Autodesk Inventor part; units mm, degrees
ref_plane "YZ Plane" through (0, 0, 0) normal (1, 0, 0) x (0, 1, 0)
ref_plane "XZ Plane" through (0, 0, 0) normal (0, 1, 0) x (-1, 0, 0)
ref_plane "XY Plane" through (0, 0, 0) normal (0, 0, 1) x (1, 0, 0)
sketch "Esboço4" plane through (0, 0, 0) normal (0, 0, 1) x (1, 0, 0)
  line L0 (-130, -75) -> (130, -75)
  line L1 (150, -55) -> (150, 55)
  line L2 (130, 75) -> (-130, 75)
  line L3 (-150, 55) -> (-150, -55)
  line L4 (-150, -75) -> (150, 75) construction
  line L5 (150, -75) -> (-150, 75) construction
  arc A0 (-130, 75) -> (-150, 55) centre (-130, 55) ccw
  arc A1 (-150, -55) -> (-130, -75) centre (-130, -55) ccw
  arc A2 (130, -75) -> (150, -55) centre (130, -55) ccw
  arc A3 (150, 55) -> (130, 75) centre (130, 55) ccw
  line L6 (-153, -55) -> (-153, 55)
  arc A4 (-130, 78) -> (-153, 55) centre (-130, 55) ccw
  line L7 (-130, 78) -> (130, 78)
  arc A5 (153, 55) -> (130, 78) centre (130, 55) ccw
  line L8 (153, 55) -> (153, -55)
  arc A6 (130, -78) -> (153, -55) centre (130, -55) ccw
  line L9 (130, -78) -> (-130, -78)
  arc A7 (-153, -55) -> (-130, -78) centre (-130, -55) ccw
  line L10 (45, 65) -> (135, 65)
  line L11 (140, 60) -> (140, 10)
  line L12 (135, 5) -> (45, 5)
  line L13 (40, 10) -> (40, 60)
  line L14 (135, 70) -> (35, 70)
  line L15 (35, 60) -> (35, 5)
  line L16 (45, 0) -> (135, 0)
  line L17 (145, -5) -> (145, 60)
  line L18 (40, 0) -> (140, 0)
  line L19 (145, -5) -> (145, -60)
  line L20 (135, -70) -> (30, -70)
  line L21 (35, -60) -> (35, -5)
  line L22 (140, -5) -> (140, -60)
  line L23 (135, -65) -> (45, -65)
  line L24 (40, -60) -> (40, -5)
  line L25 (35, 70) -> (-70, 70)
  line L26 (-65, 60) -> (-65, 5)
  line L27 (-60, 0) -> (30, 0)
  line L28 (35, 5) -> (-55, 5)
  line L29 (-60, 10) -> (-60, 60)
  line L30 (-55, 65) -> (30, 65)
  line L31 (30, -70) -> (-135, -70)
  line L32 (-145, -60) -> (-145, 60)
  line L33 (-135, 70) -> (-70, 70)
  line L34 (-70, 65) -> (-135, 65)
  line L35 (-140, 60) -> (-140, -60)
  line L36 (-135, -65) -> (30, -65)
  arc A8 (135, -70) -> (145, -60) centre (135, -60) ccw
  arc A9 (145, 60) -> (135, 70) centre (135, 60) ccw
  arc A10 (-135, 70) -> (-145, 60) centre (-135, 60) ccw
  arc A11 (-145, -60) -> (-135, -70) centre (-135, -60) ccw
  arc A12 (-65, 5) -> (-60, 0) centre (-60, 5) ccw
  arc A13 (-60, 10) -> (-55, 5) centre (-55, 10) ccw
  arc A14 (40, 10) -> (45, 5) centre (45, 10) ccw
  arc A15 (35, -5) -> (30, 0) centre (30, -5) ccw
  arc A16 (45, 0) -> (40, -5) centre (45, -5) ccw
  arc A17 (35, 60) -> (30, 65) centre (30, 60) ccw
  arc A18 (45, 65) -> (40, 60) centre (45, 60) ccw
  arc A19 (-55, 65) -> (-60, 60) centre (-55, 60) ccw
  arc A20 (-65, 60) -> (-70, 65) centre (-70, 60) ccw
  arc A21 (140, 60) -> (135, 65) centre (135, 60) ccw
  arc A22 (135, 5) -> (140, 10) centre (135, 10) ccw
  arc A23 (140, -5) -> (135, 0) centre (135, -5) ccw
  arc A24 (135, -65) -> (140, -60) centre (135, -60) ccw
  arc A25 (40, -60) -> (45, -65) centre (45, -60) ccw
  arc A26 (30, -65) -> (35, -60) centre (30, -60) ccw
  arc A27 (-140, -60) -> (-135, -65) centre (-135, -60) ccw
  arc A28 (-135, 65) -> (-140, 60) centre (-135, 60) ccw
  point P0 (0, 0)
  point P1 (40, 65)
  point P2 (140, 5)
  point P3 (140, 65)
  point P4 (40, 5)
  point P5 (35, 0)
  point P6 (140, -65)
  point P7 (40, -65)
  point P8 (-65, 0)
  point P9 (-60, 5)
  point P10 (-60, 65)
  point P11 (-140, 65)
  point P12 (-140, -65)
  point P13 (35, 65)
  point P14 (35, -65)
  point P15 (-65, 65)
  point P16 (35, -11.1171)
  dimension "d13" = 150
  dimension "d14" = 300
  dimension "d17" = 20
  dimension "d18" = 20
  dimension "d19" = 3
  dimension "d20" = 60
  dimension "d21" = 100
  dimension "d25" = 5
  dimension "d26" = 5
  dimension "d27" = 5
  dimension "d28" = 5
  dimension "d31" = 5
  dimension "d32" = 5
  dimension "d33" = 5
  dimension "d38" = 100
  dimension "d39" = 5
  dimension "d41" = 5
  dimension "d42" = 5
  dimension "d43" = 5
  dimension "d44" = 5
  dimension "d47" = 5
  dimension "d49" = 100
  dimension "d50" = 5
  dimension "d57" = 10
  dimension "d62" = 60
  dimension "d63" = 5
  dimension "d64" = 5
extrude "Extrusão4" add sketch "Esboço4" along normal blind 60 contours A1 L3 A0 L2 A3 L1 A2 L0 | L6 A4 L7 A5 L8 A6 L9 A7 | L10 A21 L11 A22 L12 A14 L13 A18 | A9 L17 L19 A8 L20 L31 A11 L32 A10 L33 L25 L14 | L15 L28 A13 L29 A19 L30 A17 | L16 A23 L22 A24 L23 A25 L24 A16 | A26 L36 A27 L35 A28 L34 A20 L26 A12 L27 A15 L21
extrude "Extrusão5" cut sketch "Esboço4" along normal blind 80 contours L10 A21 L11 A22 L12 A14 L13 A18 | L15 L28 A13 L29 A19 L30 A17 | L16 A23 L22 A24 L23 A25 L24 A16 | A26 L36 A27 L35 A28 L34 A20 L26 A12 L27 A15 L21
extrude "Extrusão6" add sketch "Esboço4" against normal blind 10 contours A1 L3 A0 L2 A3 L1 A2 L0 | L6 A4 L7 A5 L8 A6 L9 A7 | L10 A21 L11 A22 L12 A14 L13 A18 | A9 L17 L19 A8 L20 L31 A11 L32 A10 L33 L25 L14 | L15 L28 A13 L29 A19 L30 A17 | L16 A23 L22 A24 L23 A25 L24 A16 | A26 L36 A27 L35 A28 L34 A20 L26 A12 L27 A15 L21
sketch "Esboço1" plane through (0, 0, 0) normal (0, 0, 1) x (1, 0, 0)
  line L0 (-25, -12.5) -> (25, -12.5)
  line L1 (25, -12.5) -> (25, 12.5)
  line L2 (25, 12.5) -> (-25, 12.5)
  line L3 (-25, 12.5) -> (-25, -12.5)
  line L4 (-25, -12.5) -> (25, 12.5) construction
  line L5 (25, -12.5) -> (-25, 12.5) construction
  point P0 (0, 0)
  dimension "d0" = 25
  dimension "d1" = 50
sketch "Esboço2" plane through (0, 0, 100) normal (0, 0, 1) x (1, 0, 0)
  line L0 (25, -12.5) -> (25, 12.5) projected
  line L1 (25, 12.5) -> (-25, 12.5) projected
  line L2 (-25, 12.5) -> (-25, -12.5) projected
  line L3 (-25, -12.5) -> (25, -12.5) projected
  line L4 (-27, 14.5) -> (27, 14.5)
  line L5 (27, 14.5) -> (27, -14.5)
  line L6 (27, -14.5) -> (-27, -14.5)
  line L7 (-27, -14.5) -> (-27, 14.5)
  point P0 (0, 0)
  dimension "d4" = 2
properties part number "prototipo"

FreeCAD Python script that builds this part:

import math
import FreeCAD as App
import Part
import Sketcher
from FreeCAD import Vector
Q = App.Units.Quantity

doc = App.newDocument("Part")
body = doc.addObject("PartDesign::Body", "Body")

# Sketch on XY plane
sketch1 = doc.addObject("Sketcher::SketchObject", "Sketch")
body.addObject(sketch1)
sketch1.AttachmentSupport = (doc.XY_Plane, [""])
sketch1.MapMode = "FlatFace"
sketch1.addGeometry([
    Part.LineSegment(Vector(-153, 55, 0), Vector(-153, -55, 0)),  # 0
    Part.ArcOfCircle(Part.Circle(Vector(-130, -55, 0), Vector(0, 0, 1), 23), math.radians(180), math.radians(270)),  # 1
    Part.LineSegment(Vector(-130, -78, 0), Vector(130, -78, 0)),  # 2
    Part.ArcOfCircle(Part.Circle(Vector(130, -55, 0), Vector(0, 0, 1), 23), math.radians(-90), math.radians(0)),  # 3
    Part.LineSegment(Vector(153, -55, 0), Vector(153, 55, 0)),  # 4
    Part.ArcOfCircle(Part.Circle(Vector(130, 55, 0), Vector(0, 0, 1), 23), math.radians(0), math.radians(90)),  # 5
    Part.LineSegment(Vector(130, 78, 0), Vector(-130, 78, 0)),  # 6
    Part.ArcOfCircle(Part.Circle(Vector(-130, 55, 0), Vector(0, 0, 1), 23), math.radians(90), math.radians(180)),  # 7
], False)
sketch1.addConstraint([
    Sketcher.Constraint("Tangent", 0, 2, 1, 1),
    Sketcher.Constraint("Tangent", 1, 2, 2, 1),
    Sketcher.Constraint("Tangent", 2, 2, 3, 1),
    Sketcher.Constraint("Tangent", 3, 2, 4, 1),
    Sketcher.Constraint("Tangent", 4, 2, 5, 1),
    Sketcher.Constraint("Tangent", 5, 2, 6, 1),
    Sketcher.Constraint("Tangent", 6, 2, 7, 1),
    Sketcher.Constraint("Tangent", 7, 2, 0, 1),
    Sketcher.Constraint("Vertical", 0),
    Sketcher.Constraint("Horizontal", 2),
    Sketcher.Constraint("Vertical", 4),
    Sketcher.Constraint("Horizontal", 6),
    Sketcher.Constraint("Equal", 1, 3),
    Sketcher.Constraint("Equal", 3, 5),
    Sketcher.Constraint("Equal", 5, 7),
    Sketcher.Constraint("Symmetric", 1, 3, 5, 3, -1, 1),
    Sketcher.Constraint("Radius", 1, Q("23 mm")),
    Sketcher.Constraint("DistanceX", 2, 1, 2, 2, Q("260 mm")),
    Sketcher.Constraint("DistanceY", 0, 2, 0, 1, Q("110 mm")),
])
pad1 = doc.addObject("PartDesign::Pad", "Pad")
body.addObject(pad1)
pad1.Profile = sketch1
pad1.Length = 60

# Sketch on XY plane
sketch2 = doc.addObject("Sketcher::SketchObject", "Sketch001")
body.addObject(sketch2)
sketch2.AttachmentSupport = (doc.XY_Plane, [""])
sketch2.MapMode = "FlatFace"
sketch2.addGeometry([
    Part.LineSegment(Vector(135, 65, 0), Vector(45, 65, 0)),  # 0
    Part.ArcOfCircle(Part.Circle(Vector(45, 60, 0), Vector(0, 0, 1), 5), math.radians(90), math.radians(180)),  # 1
    Part.LineSegment(Vector(40, 60, 0), Vector(40, 10, 0)),  # 2
    Part.ArcOfCircle(Part.Circle(Vector(45, 10, 0), Vector(0, 0, 1), 5), math.radians(180), math.radians(270)),  # 3
    Part.LineSegment(Vector(45, 5, 0), Vector(135, 5, 0)),  # 4
    Part.ArcOfCircle(Part.Circle(Vector(135, 10, 0), Vector(0, 0, 1), 5), math.radians(-90), math.radians(0)),  # 5
    Part.LineSegment(Vector(140, 10, 0), Vector(140, 60, 0)),  # 6
    Part.ArcOfCircle(Part.Circle(Vector(135, 60, 0), Vector(0, 0, 1), 5), math.radians(0), math.radians(90)),  # 7
    Part.LineSegment(Vector(35, 5, 0), Vector(35, 60, 0)),  # 8
    Part.ArcOfCircle(Part.Circle(Vector(30, 60, 0), Vector(0, 0, 1), 5), math.radians(0), math.radians(90)),  # 9
    Part.LineSegment(Vector(30, 65, 0), Vector(-55, 65, 0)),  # 10
    Part.ArcOfCircle(Part.Circle(Vector(-55, 60, 0), Vector(0, 0, 1), 5), math.radians(90), math.radians(180)),  # 11
    Part.LineSegment(Vector(-60, 60, 0), Vector(-60, 10, 0)),  # 12
    Part.ArcOfCircle(Part.Circle(Vector(-55, 10, 0), Vector(0, 0, 1), 5), math.radians(180), math.radians(270)),  # 13
    Part.LineSegment(Vector(-55, 5, 0), Vector(35, 5, 0)),  # 14
    Part.LineSegment(Vector(135, 0, 0), Vector(45, 0, 0)),  # 15
    Part.ArcOfCircle(Part.Circle(Vector(45, -5, 0), Vector(0, 0, 1), 5), math.radians(90), math.radians(180)),  # 16
    Part.LineSegment(Vector(40, -5, 0), Vector(40, -60, 0)),  # 17
    Part.ArcOfCircle(Part.Circle(Vector(45, -60, 0), Vector(0, 0, 1), 5), math.radians(180), math.radians(270)),  # 18
    Part.LineSegment(Vector(45, -65, 0), Vector(135, -65, 0)),  # 19
    Part.ArcOfCircle(Part.Circle(Vector(135, -60, 0), Vector(0, 0, 1), 5), math.radians(-90), math.radians(0)),  # 20
    Part.LineSegment(Vector(140, -60, 0), Vector(140, -5, 0)),  # 21
    Part.ArcOfCircle(Part.Circle(Vector(135, -5, 0), Vector(0, 0, 1), 5), math.radians(0), math.radians(90)),  # 22
    Part.ArcOfCircle(Part.Circle(Vector(30, -60, 0), Vector(0, 0, 1), 5), math.radians(-90), math.radians(0)),  # 23
    Part.LineSegment(Vector(35, -60, 0), Vector(35, -5, 0)),  # 24
    Part.ArcOfCircle(Part.Circle(Vector(30, -5, 0), Vector(0, 0, 1), 5), math.radians(0), math.radians(90)),  # 25
    Part.LineSegment(Vector(30, 0, 0), Vector(-60, 0, 0)),  # 26
    Part.ArcOfCircle(Part.Circle(Vector(-60, 5, 0), Vector(0, 0, 1), 5), math.radians(180), math.radians(270)),  # 27
    Part.LineSegment(Vector(-65, 5, 0), Vector(-65, 60, 0)),  # 28
    Part.ArcOfCircle(Part.Circle(Vector(-70, 60, 0), Vector(0, 0, 1), 5), math.radians(0), math.radians(90)),  # 29
    Part.LineSegment(Vector(-70, 65, 0), Vector(-135, 65, 0)),  # 30
    Part.ArcOfCircle(Part.Circle(Vector(-135, 60, 0), Vector(0, 0, 1), 5), math.radians(90), math.radians(180)),  # 31
    Part.LineSegment(Vector(-140, 60, 0), Vector(-140, -60, 0)),  # 32
    Part.ArcOfCircle(Part.Circle(Vector(-135, -60, 0), Vector(0, 0, 1), 5), math.radians(180), math.radians(270)),  # 33
    Part.LineSegment(Vector(-135, -65, 0), Vector(30, -65, 0)),  # 34
], False)
sketch2.addConstraint([
    Sketcher.Constraint("Tangent", 0, 2, 1, 1),
    Sketcher.Constraint("Tangent", 1, 2, 2, 1),
    Sketcher.Constraint("Tangent", 2, 2, 3, 1),
    Sketcher.Constraint("Tangent", 3, 2, 4, 1),
    Sketcher.Constraint("Tangent", 4, 2, 5, 1),
    Sketcher.Constraint("Tangent", 5, 2, 6, 1),
    Sketcher.Constraint("Tangent", 6, 2, 7, 1),
    Sketcher.Constraint("Tangent", 7, 2, 0, 1),
    Sketcher.Constraint("Tangent", 8, 2, 9, 1),
    Sketcher.Constraint("Tangent", 9, 2, 10, 1),
    Sketcher.Constraint("Tangent", 10, 2, 11, 1),
    Sketcher.Constraint("Tangent", 11, 2, 12, 1),
    Sketcher.Constraint("Tangent", 12, 2, 13, 1),
    Sketcher.Constraint("Tangent", 13, 2, 14, 1),
    Sketcher.Constraint("Coincident", 14, 2, 8, 1),
    Sketcher.Constraint("Tangent", 15, 2, 16, 1),
    Sketcher.Constraint("Tangent", 16, 2, 17, 1),
    Sketcher.Constraint("Tangent", 17, 2, 18, 1),
    Sketcher.Constraint("Tangent", 18, 2, 19, 1),
    Sketcher.Constraint("Tangent", 19, 2, 20, 1),
    Sketcher.Constraint("Tangent", 20, 2, 21, 1),
    Sketcher.Constraint("Tangent", 21, 2, 22, 1),
    Sketcher.Constraint("Tangent", 22, 2, 15, 1),
    Sketcher.Constraint("Tangent", 23, 2, 24, 1),
    Sketcher.Constraint("Tangent", 24, 2, 25, 1),
    Sketcher.Constraint("Tangent", 25, 2, 26, 1),
    Sketcher.Constraint("Tangent", 26, 2, 27, 2),
    Sketcher.Constraint("Tangent", 27, 1, 28, 1),
    Sketcher.Constraint("Tangent", 28, 2, 29, 1),
    Sketcher.Constraint("Tangent", 29, 2, 30, 1),
    Sketcher.Constraint("Tangent", 30, 2, 31, 1),
    Sketcher.Constraint("Tangent", 31, 2, 32, 1),
    Sketcher.Constraint("Tangent", 32, 2, 33, 1),
    Sketcher.Constraint("Tangent", 33, 2, 34, 1),
    Sketcher.Constraint("Tangent", 34, 2, 23, 1),
    Sketcher.Constraint("Horizontal", 0),
    Sketcher.Constraint("Vertical", 2),
    Sketcher.Constraint("Horizontal", 4),
    Sketcher.Constraint("Vertical", 6),
    Sketcher.Constraint("Vertical", 8),
    Sketcher.Constraint("Horizontal", 10),
    Sketcher.Constraint("Vertical", 12),
    Sketcher.Constraint("Horizontal", 14),
    Sketcher.Constraint("Horizontal", 15),
    Sketcher.Constraint("Vertical", 17),
    Sketcher.Constraint("Horizontal", 19),
    Sketcher.Constraint("Vertical", 21),
    Sketcher.Constraint("Vertical", 24),
    Sketcher.Constraint("Horizontal", 26),
    Sketcher.Constraint("Vertical", 28),
    Sketcher.Constraint("Horizontal", 30),
    Sketcher.Constraint("Vertical", 32),
    Sketcher.Constraint("Horizontal", 34),
    Sketcher.Constraint("Equal", 1, 3),
    Sketcher.Constraint("Equal", 3, 5),
    Sketcher.Constraint("Equal", 5, 7),
    Sketcher.Constraint("Equal", 7, 9),
    Sketcher.Constraint("Equal", 9, 11),
    Sketcher.Constraint("Equal", 11, 13),
    Sketcher.Constraint("Equal", 13, 16),
    Sketcher.Constraint("Equal", 16, 18),
    Sketcher.Constraint("Equal", 18, 20),
    Sketcher.Constraint("Equal", 20, 22),
    Sketcher.Constraint("Equal", 22, 23),
    Sketcher.Constraint("Equal", 23, 25),
    Sketcher.Constraint("Equal", 25, 27),
    Sketcher.Constraint("Equal", 27, 29),
    Sketcher.Constraint("Equal", 29, 31),
    Sketcher.Constraint("Equal", 31, 33),
    Sketcher.Constraint("Symmetric", 20, 3, 31, 3, -1, 1),
    Sketcher.Constraint("Symmetric", 7, 3, 33, 3, -1, 1),
    Sketcher.Constraint("Symmetric", 1, 3, 18, 3, -1),
    Sketcher.Constraint("Symmetric", 9, 3, 23, 3, -1),
    Sketcher.Constraint("PointOnObject", 15, 2, -1),
    Sketcher.Constraint("PointOnObject", 25, 2, -1),
    Sketcher.Constraint("Horizontal", 5, 3, 13, 3),
    Sketcher.Constraint("Horizontal", 27, 3, 3, 2),
    Sketcher.Constraint("Vertical", 27, 3, 11, 2),
    Sketcher.Constraint("Equal", 4, 14),
    Sketcher.Constraint("Radius", 1, Q("5 mm")),
    Sketcher.Constraint("DistanceY", -1, 1, 1, 3, Q("60 mm")),
    Sketcher.Constraint("DistanceX", 27, 3, -1, 1, Q("60 mm")),
    Sketcher.Constraint("DistanceX", 11, 3, 1, 3, Q("100 mm")),
    Sketcher.Constraint("DistanceX", 29, 3, 9, 3, Q("100 mm")),
])
pocket1 = doc.addObject("PartDesign::Pocket", "Pocket")
body.addObject(pocket1)
pocket1.Profile = sketch2
pocket1.Length = 80
pocket1.Reversed = True

# Sketch on XY plane
sketch3 = doc.addObject("Sketcher::SketchObject", "Sketch002")
body.addObject(sketch3)
sketch3.AttachmentSupport = (doc.XY_Plane, [""])
sketch3.MapMode = "FlatFace"
sketch3.addGeometry([
    Part.LineSegment(Vector(-153, 55, 0), Vector(-153, -55, 0)),  # 0
    Part.ArcOfCircle(Part.Circle(Vector(-130, -55, 0), Vector(0, 0, 1), 23), math.radians(180), math.radians(270)),  # 1
    Part.LineSegment(Vector(-130, -78, 0), Vector(130, -78, 0)),  # 2
    Part.ArcOfCircle(Part.Circle(Vector(130, -55, 0), Vector(0, 0, 1), 23), math.radians(-90), math.radians(0)),  # 3
    Part.LineSegment(Vector(153, -55, 0), Vector(153, 55, 0)),  # 4
    Part.ArcOfCircle(Part.Circle(Vector(130, 55, 0), Vector(0, 0, 1), 23), math.radians(0), math.radians(90)),  # 5
    Part.LineSegment(Vector(130, 78, 0), Vector(-130, 78, 0)),  # 6
    Part.ArcOfCircle(Part.Circle(Vector(-130, 55, 0), Vector(0, 0, 1), 23), math.radians(90), math.radians(180)),  # 7
], False)
sketch3.addConstraint([
    Sketcher.Constraint("Tangent", 0, 2, 1, 1),
    Sketcher.Constraint("Tangent", 1, 2, 2, 1),
    Sketcher.Constraint("Tangent", 2, 2, 3, 1),
    Sketcher.Constraint("Tangent", 3, 2, 4, 1),
    Sketcher.Constraint("Tangent", 4, 2, 5, 1),
    Sketcher.Constraint("Tangent", 5, 2, 6, 1),
    Sketcher.Constraint("Tangent", 6, 2, 7, 1),
    Sketcher.Constraint("Tangent", 7, 2, 0, 1),
    Sketcher.Constraint("Vertical", 0),
    Sketcher.Constraint("Horizontal", 2),
    Sketcher.Constraint("Vertical", 4),
    Sketcher.Constraint("Horizontal", 6),
    Sketcher.Constraint("Equal", 1, 3),
    Sketcher.Constraint("Equal", 3, 5),
    Sketcher.Constraint("Equal", 5, 7),
    Sketcher.Constraint("Symmetric", 1, 3, 5, 3, -1, 1),
    Sketcher.Constraint("Radius", 1, Q("23 mm")),
    Sketcher.Constraint("DistanceX", 2, 1, 2, 2, Q("260 mm")),
    Sketcher.Constraint("DistanceY", 0, 2, 0, 1, Q("110 mm")),
])
pad2 = doc.addObject("PartDesign::Pad", "Pad001")
body.addObject(pad2)
pad2.Profile = sketch3
pad2.Length = 10
pad2.Reversed = True

doc.recompute()
